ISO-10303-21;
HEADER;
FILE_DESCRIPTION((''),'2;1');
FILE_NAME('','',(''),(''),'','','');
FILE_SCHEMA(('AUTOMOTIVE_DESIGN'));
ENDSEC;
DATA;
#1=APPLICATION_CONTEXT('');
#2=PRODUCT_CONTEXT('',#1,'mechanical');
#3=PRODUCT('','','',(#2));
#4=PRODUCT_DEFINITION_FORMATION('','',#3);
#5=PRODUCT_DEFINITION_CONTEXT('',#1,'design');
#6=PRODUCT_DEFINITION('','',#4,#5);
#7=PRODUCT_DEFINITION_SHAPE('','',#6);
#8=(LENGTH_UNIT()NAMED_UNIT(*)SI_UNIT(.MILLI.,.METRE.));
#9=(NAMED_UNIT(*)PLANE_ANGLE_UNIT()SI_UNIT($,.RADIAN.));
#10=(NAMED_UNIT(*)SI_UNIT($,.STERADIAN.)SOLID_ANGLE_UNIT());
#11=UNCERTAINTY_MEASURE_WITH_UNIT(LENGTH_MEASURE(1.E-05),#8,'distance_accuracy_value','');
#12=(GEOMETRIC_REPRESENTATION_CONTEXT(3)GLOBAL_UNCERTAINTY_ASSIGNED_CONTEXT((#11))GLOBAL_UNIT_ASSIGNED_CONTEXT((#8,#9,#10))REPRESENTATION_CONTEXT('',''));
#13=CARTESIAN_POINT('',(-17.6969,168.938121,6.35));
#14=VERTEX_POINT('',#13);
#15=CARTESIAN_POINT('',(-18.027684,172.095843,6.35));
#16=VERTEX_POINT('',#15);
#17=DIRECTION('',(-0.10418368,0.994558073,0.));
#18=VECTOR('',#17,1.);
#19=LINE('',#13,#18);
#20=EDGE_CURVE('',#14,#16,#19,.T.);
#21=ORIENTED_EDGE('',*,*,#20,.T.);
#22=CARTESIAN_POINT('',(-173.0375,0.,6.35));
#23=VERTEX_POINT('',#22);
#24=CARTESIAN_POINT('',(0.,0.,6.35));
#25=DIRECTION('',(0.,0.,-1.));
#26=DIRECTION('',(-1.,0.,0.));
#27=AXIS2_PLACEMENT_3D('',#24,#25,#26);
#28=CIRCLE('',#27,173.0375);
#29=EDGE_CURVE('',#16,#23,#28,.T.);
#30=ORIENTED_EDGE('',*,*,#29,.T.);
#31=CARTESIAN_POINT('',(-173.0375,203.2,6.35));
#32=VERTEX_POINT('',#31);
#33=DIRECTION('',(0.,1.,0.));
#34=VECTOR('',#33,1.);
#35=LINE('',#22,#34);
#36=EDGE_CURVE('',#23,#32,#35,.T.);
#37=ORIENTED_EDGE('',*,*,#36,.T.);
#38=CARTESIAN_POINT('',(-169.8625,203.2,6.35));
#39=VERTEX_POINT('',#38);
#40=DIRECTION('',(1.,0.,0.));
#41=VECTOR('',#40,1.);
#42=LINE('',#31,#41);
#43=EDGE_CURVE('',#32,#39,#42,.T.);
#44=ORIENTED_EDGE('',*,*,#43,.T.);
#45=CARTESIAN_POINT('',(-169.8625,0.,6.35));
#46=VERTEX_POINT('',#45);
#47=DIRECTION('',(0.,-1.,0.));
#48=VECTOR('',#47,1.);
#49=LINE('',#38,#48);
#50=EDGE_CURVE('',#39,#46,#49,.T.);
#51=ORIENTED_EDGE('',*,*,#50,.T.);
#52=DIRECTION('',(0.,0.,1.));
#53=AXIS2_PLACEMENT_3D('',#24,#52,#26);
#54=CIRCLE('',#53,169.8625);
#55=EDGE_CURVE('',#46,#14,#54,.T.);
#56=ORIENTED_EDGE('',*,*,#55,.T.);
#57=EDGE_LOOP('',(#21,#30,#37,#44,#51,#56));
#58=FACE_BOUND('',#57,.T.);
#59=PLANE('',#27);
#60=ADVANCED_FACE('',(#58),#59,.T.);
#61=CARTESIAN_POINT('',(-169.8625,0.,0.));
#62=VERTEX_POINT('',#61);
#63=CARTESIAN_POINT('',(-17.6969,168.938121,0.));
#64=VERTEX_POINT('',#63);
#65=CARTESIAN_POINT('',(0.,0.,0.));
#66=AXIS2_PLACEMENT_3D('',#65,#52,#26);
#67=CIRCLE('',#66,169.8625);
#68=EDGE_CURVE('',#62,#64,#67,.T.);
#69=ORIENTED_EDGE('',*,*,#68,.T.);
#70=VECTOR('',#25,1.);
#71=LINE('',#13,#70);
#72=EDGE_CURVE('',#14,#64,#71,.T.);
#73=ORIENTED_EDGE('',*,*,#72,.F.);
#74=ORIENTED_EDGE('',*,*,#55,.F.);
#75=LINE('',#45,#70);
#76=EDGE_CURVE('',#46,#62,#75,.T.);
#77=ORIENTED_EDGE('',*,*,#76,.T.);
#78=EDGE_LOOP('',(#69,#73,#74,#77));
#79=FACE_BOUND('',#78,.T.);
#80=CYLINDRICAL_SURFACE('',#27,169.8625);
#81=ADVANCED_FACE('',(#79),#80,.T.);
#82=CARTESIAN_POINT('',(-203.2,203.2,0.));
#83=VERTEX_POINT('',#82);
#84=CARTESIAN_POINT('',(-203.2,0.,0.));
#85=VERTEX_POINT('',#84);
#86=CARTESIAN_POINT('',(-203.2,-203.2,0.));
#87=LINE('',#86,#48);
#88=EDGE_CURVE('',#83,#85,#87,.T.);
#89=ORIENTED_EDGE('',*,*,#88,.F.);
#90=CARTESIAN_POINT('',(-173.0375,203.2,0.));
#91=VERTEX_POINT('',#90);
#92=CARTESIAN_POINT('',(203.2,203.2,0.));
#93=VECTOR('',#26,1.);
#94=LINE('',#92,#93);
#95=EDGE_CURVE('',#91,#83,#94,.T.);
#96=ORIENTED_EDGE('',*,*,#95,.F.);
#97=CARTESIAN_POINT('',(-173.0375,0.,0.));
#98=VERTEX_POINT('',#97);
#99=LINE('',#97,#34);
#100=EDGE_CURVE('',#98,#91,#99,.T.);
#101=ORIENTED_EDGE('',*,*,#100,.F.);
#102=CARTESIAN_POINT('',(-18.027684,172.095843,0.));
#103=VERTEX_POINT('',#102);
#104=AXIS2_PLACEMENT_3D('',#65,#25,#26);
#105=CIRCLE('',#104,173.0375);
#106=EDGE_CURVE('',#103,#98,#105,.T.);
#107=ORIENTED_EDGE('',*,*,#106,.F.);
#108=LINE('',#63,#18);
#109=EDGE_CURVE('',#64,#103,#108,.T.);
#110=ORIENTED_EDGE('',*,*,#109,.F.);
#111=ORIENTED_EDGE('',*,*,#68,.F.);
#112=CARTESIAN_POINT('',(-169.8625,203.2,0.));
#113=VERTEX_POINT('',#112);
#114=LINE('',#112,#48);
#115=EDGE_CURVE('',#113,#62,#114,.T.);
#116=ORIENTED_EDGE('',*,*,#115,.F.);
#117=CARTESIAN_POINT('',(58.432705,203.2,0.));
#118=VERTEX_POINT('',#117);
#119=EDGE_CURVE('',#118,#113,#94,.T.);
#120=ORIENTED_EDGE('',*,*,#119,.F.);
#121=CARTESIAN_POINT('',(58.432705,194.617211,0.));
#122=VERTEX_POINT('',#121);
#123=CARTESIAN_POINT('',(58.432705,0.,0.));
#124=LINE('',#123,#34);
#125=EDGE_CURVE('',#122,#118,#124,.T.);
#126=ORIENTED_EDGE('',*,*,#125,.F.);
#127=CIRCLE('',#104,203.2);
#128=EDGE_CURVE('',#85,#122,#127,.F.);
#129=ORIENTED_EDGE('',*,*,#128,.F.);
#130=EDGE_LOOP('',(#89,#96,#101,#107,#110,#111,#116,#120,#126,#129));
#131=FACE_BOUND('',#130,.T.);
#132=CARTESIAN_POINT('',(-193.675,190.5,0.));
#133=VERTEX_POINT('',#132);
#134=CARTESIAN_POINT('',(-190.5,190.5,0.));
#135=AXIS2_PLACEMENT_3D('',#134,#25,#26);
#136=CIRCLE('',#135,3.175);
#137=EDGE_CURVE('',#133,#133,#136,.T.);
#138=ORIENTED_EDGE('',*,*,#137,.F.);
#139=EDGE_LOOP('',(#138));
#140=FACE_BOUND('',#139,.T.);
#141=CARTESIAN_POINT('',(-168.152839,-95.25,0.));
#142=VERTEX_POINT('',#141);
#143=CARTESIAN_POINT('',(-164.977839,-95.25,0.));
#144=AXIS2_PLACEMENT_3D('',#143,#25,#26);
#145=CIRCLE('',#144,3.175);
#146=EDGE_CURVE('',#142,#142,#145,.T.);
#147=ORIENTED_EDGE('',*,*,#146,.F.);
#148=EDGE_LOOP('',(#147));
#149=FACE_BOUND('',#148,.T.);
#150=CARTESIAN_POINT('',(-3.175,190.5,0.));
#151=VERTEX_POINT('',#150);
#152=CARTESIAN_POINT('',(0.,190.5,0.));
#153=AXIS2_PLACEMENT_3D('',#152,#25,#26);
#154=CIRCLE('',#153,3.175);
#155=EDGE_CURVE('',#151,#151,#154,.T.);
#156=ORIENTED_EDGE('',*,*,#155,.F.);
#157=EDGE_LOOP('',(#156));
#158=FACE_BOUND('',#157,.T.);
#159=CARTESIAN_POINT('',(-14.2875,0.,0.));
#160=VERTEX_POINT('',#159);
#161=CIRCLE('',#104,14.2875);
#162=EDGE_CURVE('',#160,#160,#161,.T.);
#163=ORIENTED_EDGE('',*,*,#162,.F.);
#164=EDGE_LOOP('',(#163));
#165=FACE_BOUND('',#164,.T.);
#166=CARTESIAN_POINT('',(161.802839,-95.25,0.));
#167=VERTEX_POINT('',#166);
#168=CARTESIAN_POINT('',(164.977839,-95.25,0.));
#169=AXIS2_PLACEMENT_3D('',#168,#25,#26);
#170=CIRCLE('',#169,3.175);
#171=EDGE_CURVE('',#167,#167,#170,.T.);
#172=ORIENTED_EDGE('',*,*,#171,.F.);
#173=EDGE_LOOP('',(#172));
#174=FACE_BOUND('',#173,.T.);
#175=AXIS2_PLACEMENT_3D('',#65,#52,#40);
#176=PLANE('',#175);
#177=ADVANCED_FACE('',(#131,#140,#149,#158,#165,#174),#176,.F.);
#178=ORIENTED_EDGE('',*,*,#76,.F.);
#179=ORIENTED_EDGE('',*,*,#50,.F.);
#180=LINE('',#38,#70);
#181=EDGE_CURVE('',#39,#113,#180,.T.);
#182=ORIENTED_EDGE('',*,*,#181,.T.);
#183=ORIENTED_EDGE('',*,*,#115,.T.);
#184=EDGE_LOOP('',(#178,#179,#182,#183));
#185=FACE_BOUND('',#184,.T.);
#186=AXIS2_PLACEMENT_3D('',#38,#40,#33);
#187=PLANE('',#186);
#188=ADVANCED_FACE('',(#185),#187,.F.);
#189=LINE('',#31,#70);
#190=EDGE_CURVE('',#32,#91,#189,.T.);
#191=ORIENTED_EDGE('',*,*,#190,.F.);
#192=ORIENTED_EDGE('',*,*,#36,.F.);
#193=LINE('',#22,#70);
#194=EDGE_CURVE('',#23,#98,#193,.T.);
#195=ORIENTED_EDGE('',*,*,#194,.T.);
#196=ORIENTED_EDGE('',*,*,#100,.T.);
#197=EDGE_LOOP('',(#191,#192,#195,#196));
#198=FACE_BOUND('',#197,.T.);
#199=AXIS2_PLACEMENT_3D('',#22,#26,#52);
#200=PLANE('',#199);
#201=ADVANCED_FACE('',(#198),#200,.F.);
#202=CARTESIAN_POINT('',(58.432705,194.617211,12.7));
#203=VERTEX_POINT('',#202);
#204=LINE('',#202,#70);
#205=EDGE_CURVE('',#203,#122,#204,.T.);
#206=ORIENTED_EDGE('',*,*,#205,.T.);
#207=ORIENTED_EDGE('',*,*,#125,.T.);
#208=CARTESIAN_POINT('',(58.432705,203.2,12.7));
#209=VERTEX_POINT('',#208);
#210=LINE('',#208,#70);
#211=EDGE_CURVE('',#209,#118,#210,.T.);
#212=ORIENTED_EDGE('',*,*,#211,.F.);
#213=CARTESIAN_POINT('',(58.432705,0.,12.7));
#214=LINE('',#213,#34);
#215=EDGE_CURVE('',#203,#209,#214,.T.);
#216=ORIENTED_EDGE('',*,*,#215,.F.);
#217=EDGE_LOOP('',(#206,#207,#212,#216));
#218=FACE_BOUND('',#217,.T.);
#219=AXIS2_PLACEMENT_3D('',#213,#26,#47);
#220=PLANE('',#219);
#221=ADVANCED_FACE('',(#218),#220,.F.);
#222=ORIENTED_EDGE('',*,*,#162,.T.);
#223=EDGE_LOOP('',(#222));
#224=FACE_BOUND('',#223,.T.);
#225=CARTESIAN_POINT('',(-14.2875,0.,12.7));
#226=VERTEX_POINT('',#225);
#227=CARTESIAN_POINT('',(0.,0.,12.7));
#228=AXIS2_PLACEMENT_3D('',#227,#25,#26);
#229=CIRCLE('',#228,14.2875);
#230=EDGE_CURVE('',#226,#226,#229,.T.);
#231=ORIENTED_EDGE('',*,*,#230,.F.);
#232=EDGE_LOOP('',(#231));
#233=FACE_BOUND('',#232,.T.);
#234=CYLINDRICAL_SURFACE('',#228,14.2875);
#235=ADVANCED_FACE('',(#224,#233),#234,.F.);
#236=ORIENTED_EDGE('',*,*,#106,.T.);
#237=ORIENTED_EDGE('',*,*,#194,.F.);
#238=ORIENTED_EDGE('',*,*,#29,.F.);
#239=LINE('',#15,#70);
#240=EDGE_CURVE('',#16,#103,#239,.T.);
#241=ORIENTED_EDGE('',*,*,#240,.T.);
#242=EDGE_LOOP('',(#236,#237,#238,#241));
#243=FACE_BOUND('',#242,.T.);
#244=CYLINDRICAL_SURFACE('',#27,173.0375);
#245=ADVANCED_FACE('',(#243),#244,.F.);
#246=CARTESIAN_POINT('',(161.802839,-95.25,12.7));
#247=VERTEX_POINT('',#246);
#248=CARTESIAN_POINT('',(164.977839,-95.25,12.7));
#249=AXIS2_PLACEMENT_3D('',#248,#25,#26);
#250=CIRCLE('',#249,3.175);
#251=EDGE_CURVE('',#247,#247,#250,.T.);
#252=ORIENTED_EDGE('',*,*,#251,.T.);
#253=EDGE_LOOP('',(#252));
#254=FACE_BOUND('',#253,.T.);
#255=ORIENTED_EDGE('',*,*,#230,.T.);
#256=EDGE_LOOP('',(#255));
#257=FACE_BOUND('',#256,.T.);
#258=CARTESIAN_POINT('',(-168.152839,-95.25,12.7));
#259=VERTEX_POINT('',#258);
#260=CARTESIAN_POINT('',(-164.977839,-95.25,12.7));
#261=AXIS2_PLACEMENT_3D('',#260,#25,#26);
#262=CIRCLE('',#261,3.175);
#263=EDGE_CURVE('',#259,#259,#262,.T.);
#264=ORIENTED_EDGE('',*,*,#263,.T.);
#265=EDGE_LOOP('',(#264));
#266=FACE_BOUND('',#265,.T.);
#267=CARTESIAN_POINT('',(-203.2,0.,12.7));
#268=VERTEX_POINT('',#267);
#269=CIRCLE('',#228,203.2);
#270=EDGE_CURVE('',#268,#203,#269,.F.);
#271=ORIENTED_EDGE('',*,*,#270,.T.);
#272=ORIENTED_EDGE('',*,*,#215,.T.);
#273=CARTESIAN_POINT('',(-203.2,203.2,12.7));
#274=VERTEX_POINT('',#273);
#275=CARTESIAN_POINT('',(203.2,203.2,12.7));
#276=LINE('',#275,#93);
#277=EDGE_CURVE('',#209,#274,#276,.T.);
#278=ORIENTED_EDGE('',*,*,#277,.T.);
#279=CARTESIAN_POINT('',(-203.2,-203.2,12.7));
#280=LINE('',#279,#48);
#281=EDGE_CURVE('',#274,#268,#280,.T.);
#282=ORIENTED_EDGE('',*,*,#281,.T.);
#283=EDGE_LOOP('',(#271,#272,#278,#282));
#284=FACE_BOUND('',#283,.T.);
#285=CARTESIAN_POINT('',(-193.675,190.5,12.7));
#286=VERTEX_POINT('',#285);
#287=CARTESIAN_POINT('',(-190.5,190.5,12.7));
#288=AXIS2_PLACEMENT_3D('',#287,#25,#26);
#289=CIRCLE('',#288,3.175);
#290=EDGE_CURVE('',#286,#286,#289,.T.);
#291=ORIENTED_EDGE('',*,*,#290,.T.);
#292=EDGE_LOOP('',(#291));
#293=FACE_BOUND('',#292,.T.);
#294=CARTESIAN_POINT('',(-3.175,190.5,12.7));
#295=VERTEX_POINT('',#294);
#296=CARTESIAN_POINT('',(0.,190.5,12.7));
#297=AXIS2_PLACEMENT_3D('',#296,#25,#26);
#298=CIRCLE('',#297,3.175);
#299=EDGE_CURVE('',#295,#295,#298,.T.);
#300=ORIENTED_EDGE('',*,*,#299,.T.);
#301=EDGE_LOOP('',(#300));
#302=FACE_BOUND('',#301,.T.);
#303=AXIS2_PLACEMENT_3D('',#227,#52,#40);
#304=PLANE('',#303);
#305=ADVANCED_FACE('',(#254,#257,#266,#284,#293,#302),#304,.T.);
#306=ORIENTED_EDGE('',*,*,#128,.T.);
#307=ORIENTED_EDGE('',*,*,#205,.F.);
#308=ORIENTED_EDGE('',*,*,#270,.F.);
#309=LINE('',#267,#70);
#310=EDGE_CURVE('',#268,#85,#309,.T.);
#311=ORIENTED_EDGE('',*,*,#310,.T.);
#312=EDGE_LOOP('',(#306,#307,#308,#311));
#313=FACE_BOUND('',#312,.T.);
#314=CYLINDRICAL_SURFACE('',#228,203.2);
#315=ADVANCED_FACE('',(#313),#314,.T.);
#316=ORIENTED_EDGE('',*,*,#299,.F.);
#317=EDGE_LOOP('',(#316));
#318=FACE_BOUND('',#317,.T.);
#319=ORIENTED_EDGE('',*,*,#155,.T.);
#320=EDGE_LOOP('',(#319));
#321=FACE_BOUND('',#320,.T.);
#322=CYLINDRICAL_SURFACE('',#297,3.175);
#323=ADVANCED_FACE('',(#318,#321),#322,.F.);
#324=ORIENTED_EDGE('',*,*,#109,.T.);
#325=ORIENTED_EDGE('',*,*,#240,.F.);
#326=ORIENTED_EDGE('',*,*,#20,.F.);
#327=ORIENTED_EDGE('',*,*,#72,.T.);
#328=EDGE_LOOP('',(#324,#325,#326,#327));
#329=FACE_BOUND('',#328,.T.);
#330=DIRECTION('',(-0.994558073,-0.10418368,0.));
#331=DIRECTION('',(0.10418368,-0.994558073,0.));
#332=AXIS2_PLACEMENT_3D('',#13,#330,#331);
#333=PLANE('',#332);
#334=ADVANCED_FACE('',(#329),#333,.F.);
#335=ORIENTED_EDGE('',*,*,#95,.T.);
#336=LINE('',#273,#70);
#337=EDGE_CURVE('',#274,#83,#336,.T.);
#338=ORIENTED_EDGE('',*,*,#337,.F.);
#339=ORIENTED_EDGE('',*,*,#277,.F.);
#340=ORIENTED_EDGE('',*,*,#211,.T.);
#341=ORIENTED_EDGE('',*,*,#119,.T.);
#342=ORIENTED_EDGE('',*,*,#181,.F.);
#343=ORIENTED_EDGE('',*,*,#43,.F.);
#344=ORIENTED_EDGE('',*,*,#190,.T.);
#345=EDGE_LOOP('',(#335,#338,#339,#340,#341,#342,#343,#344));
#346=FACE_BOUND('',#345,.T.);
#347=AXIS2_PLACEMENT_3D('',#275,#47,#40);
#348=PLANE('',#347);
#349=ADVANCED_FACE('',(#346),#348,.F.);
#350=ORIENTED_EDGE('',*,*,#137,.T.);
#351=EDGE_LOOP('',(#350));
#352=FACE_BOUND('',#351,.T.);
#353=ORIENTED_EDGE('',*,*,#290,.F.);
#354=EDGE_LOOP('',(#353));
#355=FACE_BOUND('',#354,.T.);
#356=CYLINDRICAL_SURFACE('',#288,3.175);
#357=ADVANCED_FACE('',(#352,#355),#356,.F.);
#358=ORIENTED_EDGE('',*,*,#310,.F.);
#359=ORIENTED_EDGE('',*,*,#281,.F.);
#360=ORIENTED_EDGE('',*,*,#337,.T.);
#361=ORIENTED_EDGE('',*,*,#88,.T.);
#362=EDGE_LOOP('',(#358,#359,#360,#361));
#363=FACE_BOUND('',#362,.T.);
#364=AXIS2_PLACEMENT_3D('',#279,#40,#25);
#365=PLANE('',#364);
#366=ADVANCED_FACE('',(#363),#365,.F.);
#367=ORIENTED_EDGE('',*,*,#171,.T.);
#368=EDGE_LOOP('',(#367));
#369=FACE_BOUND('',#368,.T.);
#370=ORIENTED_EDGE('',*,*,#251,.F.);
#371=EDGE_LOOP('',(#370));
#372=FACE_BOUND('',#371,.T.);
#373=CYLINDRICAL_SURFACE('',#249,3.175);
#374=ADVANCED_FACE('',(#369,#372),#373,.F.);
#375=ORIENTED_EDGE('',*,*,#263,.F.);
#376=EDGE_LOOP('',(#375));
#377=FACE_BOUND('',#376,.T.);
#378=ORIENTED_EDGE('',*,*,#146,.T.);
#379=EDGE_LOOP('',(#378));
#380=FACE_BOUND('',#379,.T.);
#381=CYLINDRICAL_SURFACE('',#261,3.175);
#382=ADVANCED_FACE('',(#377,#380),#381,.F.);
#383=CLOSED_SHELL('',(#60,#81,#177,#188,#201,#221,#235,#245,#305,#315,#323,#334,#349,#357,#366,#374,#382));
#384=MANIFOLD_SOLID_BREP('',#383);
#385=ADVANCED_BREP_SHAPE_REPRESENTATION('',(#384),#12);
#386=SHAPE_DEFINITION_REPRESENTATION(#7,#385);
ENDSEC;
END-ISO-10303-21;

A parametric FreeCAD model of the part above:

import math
import FreeCAD as App
import Part
import Sketcher

V = App.Vector
Q = App.Units.Quantity

doc = App.newDocument("Part")
body = doc.addObject("PartDesign::Body", "Body")

# Sketch on XY plane
sketch1 = body.newObject("Sketcher::SketchObject", "Sketch")
sketch1.AttachmentSupport = (doc.getObject("XY_Plane"), [""])
sketch1.MapMode = "FlatFace"
sketch1.addGeometry([
    Part.LineSegment(V(-203.2, 203.2, 0), V(-203.2, -203.2, 0)),
    Part.LineSegment(V(-203.2, -203.2, 0), V(203.2, -203.2, 0)),
    Part.LineSegment(V(203.2, -203.2, 0), V(203.2, 203.2, 0)),
    Part.LineSegment(V(203.2, 203.2, 0), V(-203.2, 203.2, 0)),
], False)
sketch1.addConstraint([
    Sketcher.Constraint("Coincident", 0, 2, 1, 1),
    Sketcher.Constraint("Coincident", 1, 2, 2, 1),
    Sketcher.Constraint("Coincident", 2, 2, 3, 1),
    Sketcher.Constraint("Coincident", 3, 2, 0, 1),
    Sketcher.Constraint("Vertical", 0),
    Sketcher.Constraint("Horizontal", 1),
    Sketcher.Constraint("Vertical", 2),
    Sketcher.Constraint("Horizontal", 3),
    Sketcher.Constraint("Symmetric", 0, 2, 2, 2, -1, 1),
    Sketcher.Constraint("Equal", 3, 0),
    Sketcher.Constraint("DistanceX", 1, 1, 1, 2, Q("16 in")),
])
pad1 = body.newObject("PartDesign::Pad", "Pad")
pad1.Profile = sketch1
pad1.Length = Q("0.5 in")

# Sketch on XY plane
sketch2 = body.newObject("Sketcher::SketchObject", "Sketch001")
sketch2.AttachmentSupport = (doc.getObject("XY_Plane"), [""])
sketch2.MapMode = "FlatFace"
sketch2.addGeometry([
    Part.LineSegment(V(-17.6969, 168.938121, 0), V(-18.027684, 172.095843, 0)),  # 0
    Part.ArcOfCircle(Part.Circle(V(0, 0, 0), V(0, 0, 1), 173.0375), math.radians(180), math.radians(455.980137)),  # 1
    Part.LineSegment(V(-173.0375, 0, 0), V(-173.0375, 203.2, 0)),  # 2
    Part.LineSegment(V(-173.0375, 203.2, 0), V(-169.8625, 203.2, 0)),  # 3
    Part.LineSegment(V(-169.8625, 203.2, 0), V(-169.8625, 0, 0)),  # 4
    Part.ArcOfCircle(Part.Circle(V(0, 0, 0), V(0, 0, 1), 169.8625), math.radians(180), math.radians(455.980137)),  # 5
], False)
sketch2.addConstraint([
    Sketcher.Constraint("Coincident", 0, 2, 1, 2),
    Sketcher.Constraint("Tangent", 1, 1, 2, 1),
    Sketcher.Constraint("Coincident", 2, 2, 3, 1),
    Sketcher.Constraint("Coincident", 3, 2, 4, 1),
    Sketcher.Constraint("Tangent", 4, 2, 5, 1),
    Sketcher.Constraint("Coincident", 5, 2, 0, 1),
    Sketcher.Constraint("Vertical", 2),
    Sketcher.Constraint("Horizontal", 3),
    Sketcher.Constraint("Vertical", 4),
    Sketcher.Constraint("Coincident", 1, 3, -1, 1),
    Sketcher.Constraint("Coincident", 5, 3, -1, 1),
    Sketcher.Constraint("DistanceY", 2, 1, 2, 2, Q("8 in")),
    Sketcher.Constraint("Radius", 1, Q("6.8125 in")),
    Sketcher.Constraint("Radius", 5, Q("6.6875 in")),
    Sketcher.Constraint("DistanceX", 5, 2, -1, 1, 17.6969),
    Sketcher.Constraint("DistanceY", 5, 2, 0, 2, 3.157722),
])
pocket1 = body.newObject("PartDesign::Pocket", "Pocket")
pocket1.Profile = sketch2
pocket1.Length = Q("0.25 in")
pocket1.Reversed = True

# Sketch on XY plane
sketch3 = body.newObject("Sketcher::SketchObject", "Sketch002")
sketch3.AttachmentSupport = (doc.getObject("XY_Plane"), [""])
sketch3.MapMode = "FlatFace"
sketch3.addGeometry([
    Part.ArcOfCircle(Part.Circle(V(0, 0, 0), V(0, 0, 1), 203.2), math.radians(180), math.radians(270)),  # 0
    Part.LineSegment(V(0, -203.2, 0), V(-203.2, -203.2, 0)),  # 1
    Part.LineSegment(V(-203.2, -203.2, 0), V(-203.2, 0, 0)),  # 2
    Part.ArcOfCircle(Part.Circle(V(0, 0, 0), V(0, 0, 1), 203.2), math.radians(-90), math.radians(0)),  # 3
    Part.LineSegment(V(203.2, 0.000001, 0), V(203.2, -203.2, 0)),  # 4
    Part.LineSegment(V(203.2, -203.2, 0), V(0, -203.2, 0)),  # 5
    Part.ArcOfCircle(Part.Circle(V(0, 0, 0), V(0, 0, 1), 203.2), math.radians(0), math.radians(73.287916)),  # 6
    Part.LineSegment(V(58.432705, 194.617211, 0), V(58.432705, 203.2, 0)),  # 7
    Part.LineSegment(V(58.432705, 203.2, 0), V(203.2, 203.2, 0)),  # 8
    Part.LineSegment(V(203.2, 203.2, 0), V(203.2, 0.000001, 0)),  # 9
    Part.Circle(V(0, 0, 0), V(0, 0, 1), 14.2875),  # 10
], False)
sketch3.addConstraint([
    Sketcher.Constraint("Tangent", 0, 2, 1, 1),
    Sketcher.Constraint("Coincident", 1, 2, 2, 1),
    Sketcher.Constraint("Tangent", 2, 2, 0, 1),
    Sketcher.Constraint("Tangent", 3, 2, 4, 1),
    Sketcher.Constraint("Coincident", 4, 2, 5, 1),
    Sketcher.Constraint("Tangent", 5, 2, 3, 1),
    Sketcher.Constraint("Coincident", 6, 2, 7, 1),
    Sketcher.Constraint("Coincident", 7, 2, 8, 1),
    Sketcher.Constraint("Coincident", 8, 2, 9, 1),
    Sketcher.Constraint("Tangent", 9, 2, 6, 1),
    Sketcher.Constraint("Horizontal", 1),
    Sketcher.Constraint("Vertical", 2),
    Sketcher.Constraint("Vertical", 4),
    Sketcher.Constraint("Horizontal", 5),
    Sketcher.Constraint("Vertical", 7),
    Sketcher.Constraint("Horizontal", 8),
    Sketcher.Constraint("Vertical", 9),
    Sketcher.Constraint("Coincident", 0, 3, -1, 1),
    Sketcher.Constraint("Coincident", 3, 3, -1, 1),
    Sketcher.Constraint("Coincident", 6, 3, -1, 1),
    Sketcher.Constraint("Coincident", 10, 3, -1, 1),
    Sketcher.Constraint("Equal", 0, 3),
    Sketcher.Constraint("Equal", 3, 6),
    Sketcher.Constraint("Equal", 4, 9),
    Sketcher.Constraint("Radius", 0, Q("8 in")),
    Sketcher.Constraint("Diameter", 10, Q("1.125 in")),
    Sketcher.Constraint("DistanceX", 8, 1, 8, 2, Q("5.6994998 in")),
])
pocket2 = body.newObject("PartDesign::Pocket", "Pocket001")
pocket2.Profile = sketch3
pocket2.Type = "ThroughAll"
pocket2.Reversed = True

# Sketch on XY plane
sketch4 = body.newObject("Sketcher::SketchObject", "Sketch003")
sketch4.AttachmentSupport = (doc.getObject("XY_Plane"), [""])
sketch4.MapMode = "FlatFace"
sketch4.addGeometry([
    Part.Circle(V(164.977839, -95.25, 0), V(0, 0, 1), 3.175),
    Part.Circle(V(0, 190.5, 0), V(0, 0, 1), 3.175),
    Part.Circle(V(-164.977839, -95.25, 0), V(0, 0, 1), 3.175),
    Part.Circle(V(-190.5, 190.5, 0), V(0, 0, 1), 3.175),
], False)
sketch4.addConstraint([
    Sketcher.Constraint("Equal", 0, 1),
    Sketcher.Constraint("Equal", 1, 2),
    Sketcher.Constraint("Equal", 2, 3),
    Sketcher.Constraint("Symmetric", 0, 3, 2, 3, -2),
    Sketcher.Constraint("PointOnObject", 1, 3, -2),
    Sketcher.Constraint("Horizontal", 1, 3, 3, 3),
    Sketcher.Constraint("Diameter", 0, Q("0.25 in")),
    Sketcher.Constraint("DistanceY", -1, 1, 1, 3, Q("7.5 in")),
    Sketcher.Constraint("DistanceX", 3, 3, -1, 1, Q("7.5 in")),
    Sketcher.Constraint("DistanceY", 0, 3, -1, 1, Q("3.75 in")),
    Sketcher.Constraint("DistanceX", -1, 1, 0, 3, 164.977839),
])
pocket3 = body.newObject("PartDesign::Pocket", "Pocket002")
pocket3.Profile = sketch4
pocket3.Type = "ThroughAll"
pocket3.Reversed = True

doc.recompute()
